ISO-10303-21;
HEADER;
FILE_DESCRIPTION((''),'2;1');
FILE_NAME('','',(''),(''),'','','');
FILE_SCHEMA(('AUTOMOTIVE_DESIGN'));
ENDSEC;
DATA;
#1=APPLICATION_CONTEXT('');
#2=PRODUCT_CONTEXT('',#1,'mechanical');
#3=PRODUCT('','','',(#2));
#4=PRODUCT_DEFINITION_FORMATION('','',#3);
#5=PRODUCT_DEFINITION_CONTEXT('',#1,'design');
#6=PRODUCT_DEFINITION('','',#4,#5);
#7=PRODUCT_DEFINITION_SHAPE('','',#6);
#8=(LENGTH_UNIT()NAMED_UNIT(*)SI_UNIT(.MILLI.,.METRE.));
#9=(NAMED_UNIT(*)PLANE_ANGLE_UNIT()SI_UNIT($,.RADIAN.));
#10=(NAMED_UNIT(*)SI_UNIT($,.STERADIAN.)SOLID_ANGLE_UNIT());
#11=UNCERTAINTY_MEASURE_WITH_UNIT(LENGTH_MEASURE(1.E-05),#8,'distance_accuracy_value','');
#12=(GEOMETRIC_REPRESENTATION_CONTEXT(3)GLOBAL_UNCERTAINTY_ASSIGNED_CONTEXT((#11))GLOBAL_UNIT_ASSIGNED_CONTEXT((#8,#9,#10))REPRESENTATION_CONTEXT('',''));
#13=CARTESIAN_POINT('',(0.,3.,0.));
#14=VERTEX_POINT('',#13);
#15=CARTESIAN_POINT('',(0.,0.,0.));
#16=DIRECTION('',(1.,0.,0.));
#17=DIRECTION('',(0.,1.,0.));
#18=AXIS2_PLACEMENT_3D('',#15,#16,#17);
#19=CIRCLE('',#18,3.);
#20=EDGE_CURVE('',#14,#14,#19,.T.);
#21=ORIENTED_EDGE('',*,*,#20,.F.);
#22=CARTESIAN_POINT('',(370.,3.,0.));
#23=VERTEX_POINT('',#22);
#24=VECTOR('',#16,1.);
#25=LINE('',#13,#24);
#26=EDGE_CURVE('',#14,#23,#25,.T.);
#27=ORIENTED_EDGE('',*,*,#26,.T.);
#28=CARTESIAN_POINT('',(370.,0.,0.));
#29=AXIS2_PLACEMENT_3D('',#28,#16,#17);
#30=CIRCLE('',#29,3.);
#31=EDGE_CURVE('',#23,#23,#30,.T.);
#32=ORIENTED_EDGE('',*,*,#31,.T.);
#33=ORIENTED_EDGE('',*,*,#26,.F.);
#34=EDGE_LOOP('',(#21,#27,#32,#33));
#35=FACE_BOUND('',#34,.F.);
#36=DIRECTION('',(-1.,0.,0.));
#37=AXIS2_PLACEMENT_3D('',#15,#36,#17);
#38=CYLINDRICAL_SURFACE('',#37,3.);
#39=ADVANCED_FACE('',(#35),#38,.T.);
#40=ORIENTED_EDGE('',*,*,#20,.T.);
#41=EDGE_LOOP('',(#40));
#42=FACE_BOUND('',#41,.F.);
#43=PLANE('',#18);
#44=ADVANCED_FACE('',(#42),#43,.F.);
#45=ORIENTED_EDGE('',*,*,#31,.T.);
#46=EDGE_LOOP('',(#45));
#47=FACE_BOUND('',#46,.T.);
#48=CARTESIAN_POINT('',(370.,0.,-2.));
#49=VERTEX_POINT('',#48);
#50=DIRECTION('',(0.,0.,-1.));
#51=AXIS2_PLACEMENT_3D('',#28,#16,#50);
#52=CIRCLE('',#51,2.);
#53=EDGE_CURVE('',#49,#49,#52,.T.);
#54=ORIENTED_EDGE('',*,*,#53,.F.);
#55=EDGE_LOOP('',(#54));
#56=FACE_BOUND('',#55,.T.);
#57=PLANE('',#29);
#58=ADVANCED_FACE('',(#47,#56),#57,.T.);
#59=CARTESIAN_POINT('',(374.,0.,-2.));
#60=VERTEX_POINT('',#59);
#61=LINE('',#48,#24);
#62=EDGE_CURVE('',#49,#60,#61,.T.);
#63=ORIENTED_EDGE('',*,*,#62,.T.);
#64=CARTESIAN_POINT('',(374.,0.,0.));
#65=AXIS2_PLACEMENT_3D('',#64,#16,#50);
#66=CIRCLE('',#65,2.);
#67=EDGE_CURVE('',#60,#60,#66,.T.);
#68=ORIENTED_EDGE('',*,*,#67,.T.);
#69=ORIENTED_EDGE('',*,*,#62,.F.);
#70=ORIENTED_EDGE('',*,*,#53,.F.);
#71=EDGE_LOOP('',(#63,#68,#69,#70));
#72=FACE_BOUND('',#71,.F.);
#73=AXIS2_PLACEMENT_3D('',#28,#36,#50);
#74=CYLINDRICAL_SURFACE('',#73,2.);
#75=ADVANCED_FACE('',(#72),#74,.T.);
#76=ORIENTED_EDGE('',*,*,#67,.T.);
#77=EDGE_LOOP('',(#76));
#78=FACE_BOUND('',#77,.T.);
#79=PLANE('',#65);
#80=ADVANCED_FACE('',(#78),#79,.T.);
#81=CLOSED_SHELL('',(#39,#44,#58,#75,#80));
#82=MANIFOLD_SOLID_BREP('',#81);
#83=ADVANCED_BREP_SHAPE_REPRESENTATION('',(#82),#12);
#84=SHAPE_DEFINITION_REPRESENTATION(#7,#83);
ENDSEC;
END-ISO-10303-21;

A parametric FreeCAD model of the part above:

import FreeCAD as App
import Part
import Sketcher

V = App.Vector

doc = App.newDocument("Part")
body = doc.addObject("PartDesign::Body", "Body")

sketch1 = body.newObject("Sketcher::SketchObject", "Sketch")
sketch1.AttachmentSupport = (doc.getObject("YZ_Plane"), [""])
sketch1.MapMode = "FlatFace"
sketch1.addGeometry(Part.Circle(V(0, 0, 0), V(0, 0, 1), 3), False)
sketch1.addConstraint(Sketcher.Constraint("Coincident", 0, 3, -1, 1))
sketch1.addConstraint(Sketcher.Constraint("Diameter", 0, 6.0))
pad1 = body.newObject("PartDesign::Pad", "Pad")
pad1.Profile = sketch1
pad1.Length = 370

sketch2 = body.newObject("Sketcher::SketchObject", "Sketch001")
sketch2.AttachmentSupport = (doc.getObject("YZ_Plane"), [""])
sketch2.MapMode = "FlatFace"
sketch2.AttachmentOffset = App.Placement(V(0, 0, 370), App.Rotation())
sketch2.addGeometry(Part.Circle(V(0, 0, 0), V(0, 0, 1), 2), False)
sketch2.addConstraint(Sketcher.Constraint("Coincident", 0, 3, -1, 1))
sketch2.addConstraint(Sketcher.Constraint("Diameter", 0, 4.0))
pad2 = body.newObject("PartDesign::Pad", "Pad001")
pad2.Profile = sketch2
pad2.Length = 4

doc.recompute()
